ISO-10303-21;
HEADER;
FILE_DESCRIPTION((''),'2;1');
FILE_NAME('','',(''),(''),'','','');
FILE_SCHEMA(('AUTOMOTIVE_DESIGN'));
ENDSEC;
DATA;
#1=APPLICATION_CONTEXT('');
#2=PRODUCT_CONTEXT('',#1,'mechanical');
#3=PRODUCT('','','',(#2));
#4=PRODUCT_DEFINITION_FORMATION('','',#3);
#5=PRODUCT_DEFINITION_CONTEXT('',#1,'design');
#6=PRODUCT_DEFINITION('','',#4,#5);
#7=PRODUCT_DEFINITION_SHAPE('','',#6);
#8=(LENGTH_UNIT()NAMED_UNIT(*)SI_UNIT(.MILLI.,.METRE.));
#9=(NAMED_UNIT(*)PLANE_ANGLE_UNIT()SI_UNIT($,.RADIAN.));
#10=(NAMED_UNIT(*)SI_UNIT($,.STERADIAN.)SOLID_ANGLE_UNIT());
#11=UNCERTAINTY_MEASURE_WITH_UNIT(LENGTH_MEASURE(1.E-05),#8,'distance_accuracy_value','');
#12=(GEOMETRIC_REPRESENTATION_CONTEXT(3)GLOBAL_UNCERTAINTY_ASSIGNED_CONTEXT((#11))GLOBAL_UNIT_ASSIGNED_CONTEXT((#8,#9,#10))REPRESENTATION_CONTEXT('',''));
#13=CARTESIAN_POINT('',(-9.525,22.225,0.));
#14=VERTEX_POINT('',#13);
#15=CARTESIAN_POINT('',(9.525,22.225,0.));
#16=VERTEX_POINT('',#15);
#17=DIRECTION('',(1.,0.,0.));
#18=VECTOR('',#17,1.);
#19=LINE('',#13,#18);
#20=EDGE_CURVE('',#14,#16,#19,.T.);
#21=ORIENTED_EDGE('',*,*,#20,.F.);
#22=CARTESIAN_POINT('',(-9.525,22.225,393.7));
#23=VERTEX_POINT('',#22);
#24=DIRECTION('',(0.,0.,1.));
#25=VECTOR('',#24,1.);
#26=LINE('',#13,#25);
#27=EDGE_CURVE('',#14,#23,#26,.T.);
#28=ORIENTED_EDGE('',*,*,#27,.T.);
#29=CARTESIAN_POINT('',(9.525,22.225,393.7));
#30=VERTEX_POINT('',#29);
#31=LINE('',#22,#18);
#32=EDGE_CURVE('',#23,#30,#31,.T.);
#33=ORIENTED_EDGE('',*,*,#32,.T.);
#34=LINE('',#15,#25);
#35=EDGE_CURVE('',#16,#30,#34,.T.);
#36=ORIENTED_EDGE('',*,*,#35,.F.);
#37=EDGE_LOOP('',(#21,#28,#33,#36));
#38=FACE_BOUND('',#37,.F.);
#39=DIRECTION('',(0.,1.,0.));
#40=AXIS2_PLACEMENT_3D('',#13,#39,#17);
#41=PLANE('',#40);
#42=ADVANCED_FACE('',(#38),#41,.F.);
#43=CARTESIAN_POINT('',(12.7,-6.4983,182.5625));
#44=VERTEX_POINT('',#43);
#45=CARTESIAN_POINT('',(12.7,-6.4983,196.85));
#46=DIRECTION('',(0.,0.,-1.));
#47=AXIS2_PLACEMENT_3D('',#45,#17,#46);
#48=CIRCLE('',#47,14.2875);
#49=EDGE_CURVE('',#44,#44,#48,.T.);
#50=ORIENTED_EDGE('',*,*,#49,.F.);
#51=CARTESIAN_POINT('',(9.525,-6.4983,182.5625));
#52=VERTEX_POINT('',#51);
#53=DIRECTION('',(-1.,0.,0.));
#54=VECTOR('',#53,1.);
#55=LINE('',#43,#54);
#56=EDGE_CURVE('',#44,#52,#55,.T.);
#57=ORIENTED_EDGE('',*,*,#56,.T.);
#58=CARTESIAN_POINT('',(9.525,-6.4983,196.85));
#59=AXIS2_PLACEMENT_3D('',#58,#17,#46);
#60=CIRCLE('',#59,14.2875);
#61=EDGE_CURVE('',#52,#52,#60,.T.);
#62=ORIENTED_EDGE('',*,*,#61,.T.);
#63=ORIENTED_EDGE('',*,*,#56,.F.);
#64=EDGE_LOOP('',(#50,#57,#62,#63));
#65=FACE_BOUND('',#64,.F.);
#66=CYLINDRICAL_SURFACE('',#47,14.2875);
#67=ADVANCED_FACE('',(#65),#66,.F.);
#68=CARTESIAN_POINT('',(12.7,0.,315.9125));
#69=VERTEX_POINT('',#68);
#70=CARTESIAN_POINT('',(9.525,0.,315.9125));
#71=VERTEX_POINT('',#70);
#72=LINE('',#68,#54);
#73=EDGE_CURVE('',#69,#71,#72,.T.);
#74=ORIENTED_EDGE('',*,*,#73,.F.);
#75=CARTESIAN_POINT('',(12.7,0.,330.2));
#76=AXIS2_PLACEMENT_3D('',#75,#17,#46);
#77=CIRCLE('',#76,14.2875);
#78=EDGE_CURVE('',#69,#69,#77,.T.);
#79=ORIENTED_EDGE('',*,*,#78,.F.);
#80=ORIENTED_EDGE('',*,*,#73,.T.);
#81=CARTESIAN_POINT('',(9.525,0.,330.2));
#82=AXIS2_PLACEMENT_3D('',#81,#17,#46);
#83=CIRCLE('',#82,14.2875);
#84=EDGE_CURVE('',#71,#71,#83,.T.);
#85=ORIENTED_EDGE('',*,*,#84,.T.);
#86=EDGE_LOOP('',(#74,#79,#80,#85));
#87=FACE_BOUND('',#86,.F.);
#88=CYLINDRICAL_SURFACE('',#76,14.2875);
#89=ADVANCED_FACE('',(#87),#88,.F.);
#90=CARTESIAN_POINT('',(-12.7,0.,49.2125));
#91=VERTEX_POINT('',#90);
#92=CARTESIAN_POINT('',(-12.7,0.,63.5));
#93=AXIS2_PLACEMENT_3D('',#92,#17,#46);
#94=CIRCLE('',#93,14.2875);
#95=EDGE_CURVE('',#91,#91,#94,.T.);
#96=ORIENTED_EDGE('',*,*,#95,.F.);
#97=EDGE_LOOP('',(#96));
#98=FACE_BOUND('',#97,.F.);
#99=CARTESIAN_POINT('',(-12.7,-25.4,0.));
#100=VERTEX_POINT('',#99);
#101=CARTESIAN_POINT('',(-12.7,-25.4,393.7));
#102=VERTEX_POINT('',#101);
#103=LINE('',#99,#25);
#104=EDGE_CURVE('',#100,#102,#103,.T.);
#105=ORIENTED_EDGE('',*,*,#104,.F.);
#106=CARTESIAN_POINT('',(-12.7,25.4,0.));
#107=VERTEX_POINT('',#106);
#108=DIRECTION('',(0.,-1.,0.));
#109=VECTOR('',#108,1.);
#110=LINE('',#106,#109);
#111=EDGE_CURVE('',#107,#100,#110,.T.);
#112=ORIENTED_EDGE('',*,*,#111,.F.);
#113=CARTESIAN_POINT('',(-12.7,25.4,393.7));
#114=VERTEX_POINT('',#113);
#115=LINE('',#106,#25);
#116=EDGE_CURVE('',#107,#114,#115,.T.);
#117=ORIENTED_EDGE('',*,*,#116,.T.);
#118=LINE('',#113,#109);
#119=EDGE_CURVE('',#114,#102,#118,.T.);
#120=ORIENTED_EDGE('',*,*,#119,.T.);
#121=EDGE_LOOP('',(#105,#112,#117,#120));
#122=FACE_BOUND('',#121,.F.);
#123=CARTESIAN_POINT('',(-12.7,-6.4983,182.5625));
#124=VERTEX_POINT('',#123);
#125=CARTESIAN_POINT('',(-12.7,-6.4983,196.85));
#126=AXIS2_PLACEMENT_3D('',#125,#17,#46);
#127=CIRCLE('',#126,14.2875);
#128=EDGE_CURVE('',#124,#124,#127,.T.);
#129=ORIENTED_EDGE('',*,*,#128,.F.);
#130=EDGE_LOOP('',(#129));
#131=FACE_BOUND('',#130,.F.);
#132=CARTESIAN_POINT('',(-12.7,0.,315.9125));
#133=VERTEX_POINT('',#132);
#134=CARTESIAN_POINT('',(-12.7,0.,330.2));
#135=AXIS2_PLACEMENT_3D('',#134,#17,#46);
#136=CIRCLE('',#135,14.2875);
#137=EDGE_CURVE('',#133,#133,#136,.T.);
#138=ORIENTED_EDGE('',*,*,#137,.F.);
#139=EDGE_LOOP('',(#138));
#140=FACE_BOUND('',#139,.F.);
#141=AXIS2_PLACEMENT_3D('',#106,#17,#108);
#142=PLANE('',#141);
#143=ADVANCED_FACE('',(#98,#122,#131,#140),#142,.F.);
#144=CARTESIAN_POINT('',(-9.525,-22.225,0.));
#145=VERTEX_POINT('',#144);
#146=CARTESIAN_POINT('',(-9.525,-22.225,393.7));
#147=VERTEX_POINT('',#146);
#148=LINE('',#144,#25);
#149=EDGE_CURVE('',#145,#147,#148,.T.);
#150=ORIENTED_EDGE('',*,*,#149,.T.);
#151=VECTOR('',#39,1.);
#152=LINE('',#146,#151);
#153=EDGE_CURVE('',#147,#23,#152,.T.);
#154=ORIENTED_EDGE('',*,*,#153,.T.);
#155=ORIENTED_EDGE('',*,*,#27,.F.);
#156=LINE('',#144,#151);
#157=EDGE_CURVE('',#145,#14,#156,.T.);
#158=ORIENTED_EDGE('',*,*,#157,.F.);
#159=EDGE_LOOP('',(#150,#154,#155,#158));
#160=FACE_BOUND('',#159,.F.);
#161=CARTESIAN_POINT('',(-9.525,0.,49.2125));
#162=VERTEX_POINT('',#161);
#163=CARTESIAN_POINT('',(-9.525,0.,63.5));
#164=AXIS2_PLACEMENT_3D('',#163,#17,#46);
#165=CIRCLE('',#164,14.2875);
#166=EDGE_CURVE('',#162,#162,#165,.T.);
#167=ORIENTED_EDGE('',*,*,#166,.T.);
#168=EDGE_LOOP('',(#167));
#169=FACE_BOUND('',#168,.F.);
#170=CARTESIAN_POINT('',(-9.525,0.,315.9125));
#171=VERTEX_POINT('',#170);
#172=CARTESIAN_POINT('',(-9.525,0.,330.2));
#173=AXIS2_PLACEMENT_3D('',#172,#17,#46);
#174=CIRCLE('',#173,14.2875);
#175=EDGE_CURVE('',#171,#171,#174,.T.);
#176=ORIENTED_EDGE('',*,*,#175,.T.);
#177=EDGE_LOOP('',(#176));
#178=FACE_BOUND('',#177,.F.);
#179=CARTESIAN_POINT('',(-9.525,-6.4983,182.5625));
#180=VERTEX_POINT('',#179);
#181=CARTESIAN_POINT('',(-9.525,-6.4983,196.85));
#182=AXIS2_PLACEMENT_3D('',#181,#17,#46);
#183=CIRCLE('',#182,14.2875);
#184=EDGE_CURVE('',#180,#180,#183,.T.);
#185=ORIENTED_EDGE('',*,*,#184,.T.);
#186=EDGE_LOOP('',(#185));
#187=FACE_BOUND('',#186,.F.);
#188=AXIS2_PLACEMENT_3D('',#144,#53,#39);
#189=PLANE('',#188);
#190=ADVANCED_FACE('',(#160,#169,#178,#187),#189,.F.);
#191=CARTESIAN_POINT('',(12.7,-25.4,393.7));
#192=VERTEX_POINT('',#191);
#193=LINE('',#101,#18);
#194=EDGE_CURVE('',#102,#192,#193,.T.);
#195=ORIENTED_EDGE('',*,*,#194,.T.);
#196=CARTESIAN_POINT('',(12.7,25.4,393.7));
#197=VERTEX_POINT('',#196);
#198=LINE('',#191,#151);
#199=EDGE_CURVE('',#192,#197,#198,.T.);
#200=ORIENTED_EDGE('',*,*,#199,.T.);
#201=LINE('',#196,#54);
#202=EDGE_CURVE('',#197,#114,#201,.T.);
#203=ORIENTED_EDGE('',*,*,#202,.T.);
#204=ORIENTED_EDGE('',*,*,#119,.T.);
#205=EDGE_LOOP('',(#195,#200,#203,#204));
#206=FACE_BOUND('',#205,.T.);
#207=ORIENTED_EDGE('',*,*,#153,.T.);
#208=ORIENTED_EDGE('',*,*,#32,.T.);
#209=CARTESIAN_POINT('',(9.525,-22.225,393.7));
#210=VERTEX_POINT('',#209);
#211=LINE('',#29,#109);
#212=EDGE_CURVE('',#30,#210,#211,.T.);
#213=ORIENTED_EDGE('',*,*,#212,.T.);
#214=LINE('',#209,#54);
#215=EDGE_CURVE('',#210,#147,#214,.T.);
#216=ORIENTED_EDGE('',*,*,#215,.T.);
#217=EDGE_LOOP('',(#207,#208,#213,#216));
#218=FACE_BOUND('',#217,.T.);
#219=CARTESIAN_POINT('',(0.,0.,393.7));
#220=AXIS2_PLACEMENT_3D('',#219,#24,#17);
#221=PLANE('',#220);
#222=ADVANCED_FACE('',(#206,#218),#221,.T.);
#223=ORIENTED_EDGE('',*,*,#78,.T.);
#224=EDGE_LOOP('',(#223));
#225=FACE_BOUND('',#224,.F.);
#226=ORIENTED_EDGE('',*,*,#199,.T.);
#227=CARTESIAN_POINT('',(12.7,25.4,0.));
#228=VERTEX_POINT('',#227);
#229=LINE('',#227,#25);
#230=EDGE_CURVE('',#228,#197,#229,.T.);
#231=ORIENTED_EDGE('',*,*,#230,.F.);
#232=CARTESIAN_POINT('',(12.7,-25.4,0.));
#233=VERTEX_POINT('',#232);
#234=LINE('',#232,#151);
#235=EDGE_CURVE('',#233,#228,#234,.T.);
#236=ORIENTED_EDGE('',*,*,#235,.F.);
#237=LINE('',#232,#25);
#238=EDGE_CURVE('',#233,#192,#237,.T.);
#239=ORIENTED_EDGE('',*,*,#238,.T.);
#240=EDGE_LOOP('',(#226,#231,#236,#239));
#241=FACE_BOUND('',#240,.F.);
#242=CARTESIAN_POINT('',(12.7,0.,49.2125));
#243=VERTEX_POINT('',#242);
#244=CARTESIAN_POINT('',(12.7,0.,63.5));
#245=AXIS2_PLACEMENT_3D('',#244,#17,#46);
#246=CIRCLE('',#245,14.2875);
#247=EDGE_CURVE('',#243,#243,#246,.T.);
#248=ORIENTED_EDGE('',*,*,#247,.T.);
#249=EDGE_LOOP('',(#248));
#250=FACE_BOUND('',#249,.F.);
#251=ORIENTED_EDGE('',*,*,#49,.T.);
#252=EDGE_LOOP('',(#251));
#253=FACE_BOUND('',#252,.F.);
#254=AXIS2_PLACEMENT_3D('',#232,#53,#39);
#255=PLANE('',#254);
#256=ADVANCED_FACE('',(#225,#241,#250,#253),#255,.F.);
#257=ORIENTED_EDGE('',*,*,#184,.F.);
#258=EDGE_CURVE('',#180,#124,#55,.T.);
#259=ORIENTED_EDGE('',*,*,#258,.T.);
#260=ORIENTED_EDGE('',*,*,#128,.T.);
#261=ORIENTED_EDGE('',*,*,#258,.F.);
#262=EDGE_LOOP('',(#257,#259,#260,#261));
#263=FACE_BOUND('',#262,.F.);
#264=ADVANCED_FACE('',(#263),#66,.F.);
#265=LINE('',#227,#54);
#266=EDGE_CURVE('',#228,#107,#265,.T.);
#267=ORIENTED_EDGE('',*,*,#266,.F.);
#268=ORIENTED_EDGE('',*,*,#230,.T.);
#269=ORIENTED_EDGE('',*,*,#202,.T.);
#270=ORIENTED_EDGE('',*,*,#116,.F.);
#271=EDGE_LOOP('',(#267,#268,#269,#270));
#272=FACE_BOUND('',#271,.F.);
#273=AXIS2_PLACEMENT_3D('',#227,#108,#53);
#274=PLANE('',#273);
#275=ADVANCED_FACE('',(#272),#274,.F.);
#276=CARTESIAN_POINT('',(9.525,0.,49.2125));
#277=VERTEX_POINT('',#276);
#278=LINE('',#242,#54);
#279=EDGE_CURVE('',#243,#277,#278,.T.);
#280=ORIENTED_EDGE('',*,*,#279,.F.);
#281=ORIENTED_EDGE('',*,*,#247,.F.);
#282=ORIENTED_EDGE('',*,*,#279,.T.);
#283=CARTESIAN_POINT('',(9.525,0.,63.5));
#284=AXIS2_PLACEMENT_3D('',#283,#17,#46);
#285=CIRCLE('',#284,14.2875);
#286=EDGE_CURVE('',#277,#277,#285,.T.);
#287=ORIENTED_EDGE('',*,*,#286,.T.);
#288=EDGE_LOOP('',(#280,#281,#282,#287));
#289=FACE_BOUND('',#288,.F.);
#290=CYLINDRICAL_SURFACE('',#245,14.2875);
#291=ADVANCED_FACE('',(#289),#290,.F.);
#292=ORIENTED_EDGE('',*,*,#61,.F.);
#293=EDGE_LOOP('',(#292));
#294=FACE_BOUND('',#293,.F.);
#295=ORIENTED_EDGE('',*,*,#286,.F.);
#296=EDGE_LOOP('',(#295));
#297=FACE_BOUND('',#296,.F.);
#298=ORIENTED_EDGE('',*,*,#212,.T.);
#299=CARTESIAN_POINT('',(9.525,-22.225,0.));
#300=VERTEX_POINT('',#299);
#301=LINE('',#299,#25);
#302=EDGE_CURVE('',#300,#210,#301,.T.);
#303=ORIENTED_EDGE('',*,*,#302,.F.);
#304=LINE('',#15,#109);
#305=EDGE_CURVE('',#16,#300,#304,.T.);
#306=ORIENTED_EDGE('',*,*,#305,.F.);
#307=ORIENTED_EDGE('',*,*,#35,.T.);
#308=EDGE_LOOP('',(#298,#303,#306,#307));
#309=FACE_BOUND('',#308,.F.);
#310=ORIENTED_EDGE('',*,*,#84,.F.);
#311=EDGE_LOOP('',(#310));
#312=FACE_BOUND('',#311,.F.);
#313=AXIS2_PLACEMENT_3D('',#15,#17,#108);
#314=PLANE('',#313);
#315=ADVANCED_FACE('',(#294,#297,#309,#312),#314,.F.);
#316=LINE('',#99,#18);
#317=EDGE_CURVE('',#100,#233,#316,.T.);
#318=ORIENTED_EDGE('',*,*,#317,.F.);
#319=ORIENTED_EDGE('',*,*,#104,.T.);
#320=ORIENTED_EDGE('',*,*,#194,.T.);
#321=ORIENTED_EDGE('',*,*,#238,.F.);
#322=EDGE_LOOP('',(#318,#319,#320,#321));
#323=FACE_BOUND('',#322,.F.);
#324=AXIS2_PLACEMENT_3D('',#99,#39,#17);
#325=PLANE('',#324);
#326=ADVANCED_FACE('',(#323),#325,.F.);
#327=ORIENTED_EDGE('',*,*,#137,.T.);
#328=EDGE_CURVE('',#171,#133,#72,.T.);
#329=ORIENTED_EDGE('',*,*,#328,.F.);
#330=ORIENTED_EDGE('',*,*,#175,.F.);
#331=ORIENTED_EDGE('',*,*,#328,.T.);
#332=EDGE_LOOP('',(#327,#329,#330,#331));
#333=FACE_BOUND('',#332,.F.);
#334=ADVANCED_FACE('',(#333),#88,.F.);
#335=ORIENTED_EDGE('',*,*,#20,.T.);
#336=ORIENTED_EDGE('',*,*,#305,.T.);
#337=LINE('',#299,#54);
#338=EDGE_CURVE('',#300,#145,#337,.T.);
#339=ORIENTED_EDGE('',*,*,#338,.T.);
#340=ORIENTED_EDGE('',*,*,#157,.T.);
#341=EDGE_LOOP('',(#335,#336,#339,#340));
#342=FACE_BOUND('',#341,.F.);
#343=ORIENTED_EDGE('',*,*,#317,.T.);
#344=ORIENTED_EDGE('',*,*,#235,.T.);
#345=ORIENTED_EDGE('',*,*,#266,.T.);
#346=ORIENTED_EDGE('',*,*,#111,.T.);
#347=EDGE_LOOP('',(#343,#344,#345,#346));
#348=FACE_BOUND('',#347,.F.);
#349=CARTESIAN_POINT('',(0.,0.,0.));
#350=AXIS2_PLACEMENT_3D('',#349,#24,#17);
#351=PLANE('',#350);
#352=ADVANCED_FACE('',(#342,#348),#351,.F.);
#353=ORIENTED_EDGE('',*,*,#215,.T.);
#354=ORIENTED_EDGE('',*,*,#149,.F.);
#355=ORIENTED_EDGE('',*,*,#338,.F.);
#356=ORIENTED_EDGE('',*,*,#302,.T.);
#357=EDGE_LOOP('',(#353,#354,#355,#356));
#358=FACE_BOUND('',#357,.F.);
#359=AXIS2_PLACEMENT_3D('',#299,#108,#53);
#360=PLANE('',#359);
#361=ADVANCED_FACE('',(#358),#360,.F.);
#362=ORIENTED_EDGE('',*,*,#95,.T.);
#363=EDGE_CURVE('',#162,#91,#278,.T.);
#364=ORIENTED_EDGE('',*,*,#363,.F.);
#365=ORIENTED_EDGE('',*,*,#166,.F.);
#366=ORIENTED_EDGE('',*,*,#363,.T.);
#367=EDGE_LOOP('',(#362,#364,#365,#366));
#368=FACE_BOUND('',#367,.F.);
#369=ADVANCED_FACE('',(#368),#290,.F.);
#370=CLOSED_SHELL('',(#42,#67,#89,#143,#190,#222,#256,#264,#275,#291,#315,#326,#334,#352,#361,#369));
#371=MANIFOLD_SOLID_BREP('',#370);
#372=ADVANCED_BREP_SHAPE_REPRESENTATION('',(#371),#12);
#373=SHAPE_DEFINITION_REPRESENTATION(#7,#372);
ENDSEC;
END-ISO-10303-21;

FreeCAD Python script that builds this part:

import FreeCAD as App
import Part
import Sketcher
from FreeCAD import Vector
Q = App.Units.Quantity

doc = App.newDocument("Part")
body = doc.addObject("PartDesign::Body", "Body")

sketch1 = body.newObject("Sketcher::SketchObject", "Sketch")
sketch1.AttachmentSupport = (doc.getObject("XY_Plane"), [""])
sketch1.MapMode = "FlatFace"
sketch1.addGeometry([
    Part.LineSegment(Vector(13, -25, 0), Vector(13, 25, 0)),
    Part.LineSegment(Vector(13, 25, 0), Vector(-13, 25, 0)),
    Part.LineSegment(Vector(-13, 25, 0), Vector(-13, -25, 0)),
    Part.LineSegment(Vector(-13, -25, 0), Vector(13, -25, 0)),
    Part.LineSegment(Vector(-10, 22, 0), Vector(10, 22, 0)),
    Part.LineSegment(Vector(10, 22, 0), Vector(10, -22, 0)),
    Part.LineSegment(Vector(10, -22, 0), Vector(-10, -22, 0)),
    Part.LineSegment(Vector(-10, -22, 0), Vector(-10, 22, 0)),
], False)
sketch1.addConstraint([
    Sketcher.Constraint("Coincident", 0, 2, 1, 1),
    Sketcher.Constraint("Coincident", 1, 2, 2, 1),
    Sketcher.Constraint("Coincident", 2, 2, 3, 1),
    Sketcher.Constraint("Coincident", 3, 2, 0, 1),
    Sketcher.Constraint("Coincident", 4, 2, 5, 1),
    Sketcher.Constraint("Coincident", 5, 2, 6, 1),
    Sketcher.Constraint("Coincident", 6, 2, 7, 1),
    Sketcher.Constraint("Coincident", 7, 2, 4, 1),
    Sketcher.Constraint("Vertical", 0),
    Sketcher.Constraint("Horizontal", 1),
    Sketcher.Constraint("Vertical", 2),
    Sketcher.Constraint("Horizontal", 3),
    Sketcher.Constraint("Horizontal", 4),
    Sketcher.Constraint("Vertical", 5),
    Sketcher.Constraint("Horizontal", 6),
    Sketcher.Constraint("Vertical", 7),
    Sketcher.Constraint("Symmetric", 0, 2, 2, 2, -1, 1),
    Sketcher.Constraint("Symmetric", 4, 2, 6, 2, -1, 1),
    Sketcher.Constraint("DistanceX", 1, 2, 1, 1, Q("1 in")),
    Sketcher.Constraint("DistanceY", 0, 1, 0, 2, Q("2 in")),
    Sketcher.Constraint("DistanceX", 4, 1, 4, 2, Q("0.75 in")),
    Sketcher.Constraint("DistanceY", 5, 2, 5, 1, Q("1.75 in")),
])
pad1 = body.newObject("PartDesign::Pad", "Pad")
pad1.Profile = sketch1
pad1.Length = Q("15.5 in")

sketch2 = body.newObject("Sketcher::SketchObject", "Sketch001")
sketch2.AttachmentSupport = (doc.getObject("YZ_Plane"), [""])
sketch2.MapMode = "FlatFace"
sketch2.AttachmentOffset = App.Placement(Vector(0, 0, 0.5 * 25.4), App.Rotation())
sketch2.addGeometry(Part.Circle(Vector(-6, 197, 0), Vector(0, 0, 1), 14), False)
sketch2.addConstraint([
    Sketcher.Constraint("Diameter", 0, Q("1.125 in")),
    Sketcher.Constraint("DistanceY", -1, 1, 0, 3, Q("7.75 in")),
    Sketcher.Constraint("DistanceX", 0, 3, -1, 1, Q("6.4983 mm")),
])
pocket1 = body.newObject("PartDesign::Pocket", "Pocket")
pocket1.Profile = sketch2
pocket1.Length = Q("1 in")

sketch3 = body.newObject("Sketcher::SketchObject", "Sketch002")
sketch3.AttachmentSupport = (doc.getObject("YZ_Plane"), [""])
sketch3.MapMode = "FlatFace"
sketch3.AttachmentOffset = App.Placement(Vector(0, 0, 0.5 * 25.4), App.Rotation())
sketch3.addGeometry([
    Part.Circle(Vector(0, 330, 0), Vector(0, 0, 1), 14),
    Part.Circle(Vector(0, 64, 0), Vector(0, 0, 1), 14),
], False)
sketch3.addConstraint([
    Sketcher.Constraint("Equal", 0, 1),
    Sketcher.Constraint("PointOnObject", 0, 3, -2),
    Sketcher.Constraint("PointOnObject", 1, 3, -2),
    Sketcher.Constraint("Diameter", 0, Q("1.125 in")),
    Sketcher.Constraint("DistanceY", -1, 1, 1, 3, Q("2.5 in")),
    Sketcher.Constraint("DistanceY", -1, 1, 0, 3, Q("13 in")),
])
pocket2 = body.newObject("PartDesign::Pocket", "Pocket001")
pocket2.Profile = sketch3
pocket2.Length = Q("1 in")

doc.recompute()
